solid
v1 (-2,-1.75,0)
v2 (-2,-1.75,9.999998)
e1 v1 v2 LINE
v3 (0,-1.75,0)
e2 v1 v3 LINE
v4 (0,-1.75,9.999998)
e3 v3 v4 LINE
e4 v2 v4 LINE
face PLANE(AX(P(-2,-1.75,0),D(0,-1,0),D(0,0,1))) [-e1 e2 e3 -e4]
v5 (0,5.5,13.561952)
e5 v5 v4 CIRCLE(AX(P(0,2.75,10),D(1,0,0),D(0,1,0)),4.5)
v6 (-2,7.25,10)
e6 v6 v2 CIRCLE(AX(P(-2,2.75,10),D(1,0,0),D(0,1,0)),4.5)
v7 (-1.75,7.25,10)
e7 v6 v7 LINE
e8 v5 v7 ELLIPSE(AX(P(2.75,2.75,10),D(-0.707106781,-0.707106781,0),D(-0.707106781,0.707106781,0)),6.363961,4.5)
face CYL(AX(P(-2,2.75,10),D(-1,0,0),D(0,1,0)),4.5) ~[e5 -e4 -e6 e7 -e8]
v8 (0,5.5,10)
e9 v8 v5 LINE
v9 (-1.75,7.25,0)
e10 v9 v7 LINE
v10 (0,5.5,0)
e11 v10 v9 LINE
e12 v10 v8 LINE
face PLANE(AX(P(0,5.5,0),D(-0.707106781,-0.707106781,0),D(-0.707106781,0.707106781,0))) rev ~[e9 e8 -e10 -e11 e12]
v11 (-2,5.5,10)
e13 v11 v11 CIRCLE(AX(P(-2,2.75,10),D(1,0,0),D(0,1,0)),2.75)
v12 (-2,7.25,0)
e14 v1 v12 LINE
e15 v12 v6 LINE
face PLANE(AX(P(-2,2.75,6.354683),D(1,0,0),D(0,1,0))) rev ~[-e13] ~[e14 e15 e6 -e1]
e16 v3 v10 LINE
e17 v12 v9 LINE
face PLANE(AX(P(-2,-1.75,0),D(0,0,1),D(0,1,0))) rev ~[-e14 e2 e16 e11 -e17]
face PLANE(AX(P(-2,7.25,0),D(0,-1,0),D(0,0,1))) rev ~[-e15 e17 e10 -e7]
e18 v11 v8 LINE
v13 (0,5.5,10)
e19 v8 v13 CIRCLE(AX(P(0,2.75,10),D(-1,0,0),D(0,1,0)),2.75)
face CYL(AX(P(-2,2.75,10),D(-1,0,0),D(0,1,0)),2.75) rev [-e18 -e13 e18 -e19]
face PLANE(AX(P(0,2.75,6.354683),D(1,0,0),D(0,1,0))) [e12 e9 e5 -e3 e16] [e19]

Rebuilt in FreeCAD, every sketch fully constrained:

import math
import FreeCAD as App
import Part
import Sketcher

doc = App.newDocument("Part")
body = doc.addObject("PartDesign::Body", "Body")

# Sketch on YZ plane
sketch1 = body.newObject("Sketcher::SketchObject", "Sketch")
sketch1.AttachmentSupport = (doc.getObject("YZ_Plane"), [""])
sketch1.MapMode = "FlatFace"
sketch1.AttachmentOffset = App.Placement(App.Vector(0, 0, -2), App.Rotation())
sketch1.addGeometry(Part.Circle(App.Vector(2.8, 10, 0), App.Vector(0, 0, 1), 2.8), False)
sketch1.addConstraint(Sketcher.Constraint("Diameter", 0, 5.5))
sketch1.addConstraint(Sketcher.Constraint("DistanceY", -1, 1, 0, 3, 10.0))
sketch1.addConstraint(Sketcher.Constraint("DistanceX", -1, 1, 0, 3, 2.75))
pad1 = body.newObject("PartDesign::Pad", "Pad")
pad1.Profile = sketch1
pad1.Length = 5
body2 = doc.addObject("PartDesign::Body", "Body001")

# Sketch on XY plane
sketch2 = body2.newObject("Sketcher::SketchObject", "Sketch001")
sketch2.AttachmentSupport = (doc.getObject("XY_Plane001"), [""])
sketch2.MapMode = "FlatFace"
sketch2.addGeometry(Part.LineSegment(App.Vector(-1.8, 7.2, 0), App.Vector(0, 5.5, 0)), False)
sketch2.addGeometry(Part.LineSegment(App.Vector(0, 5.5, 0), App.Vector(0, 7.2, 0)), False)
sketch2.addGeometry(Part.LineSegment(App.Vector(0, 7.2, 0), App.Vector(-1.8, 7.2, 0)), False)
sketch2.addConstraint(Sketcher.Constraint("Coincident", 0, 2, 1, 1))
sketch2.addConstraint(Sketcher.Constraint("Coincident", 1, 2, 2, 1))
sketch2.addConstraint(Sketcher.Constraint("Coincident", 2, 2, 0, 1))
sketch2.addConstraint(Sketcher.Constraint("Vertical", 1))
sketch2.addConstraint(Sketcher.Constraint("Horizontal", 2))
sketch2.addConstraint(Sketcher.Constraint("PointOnObject", 0, 2, -2))
sketch2.addConstraint(Sketcher.Constraint("Equal", 2, 1))
sketch2.addConstraint(Sketcher.Constraint("DistanceX", 2, 2, 2, 1, 1.75))
sketch2.addConstraint(Sketcher.Constraint("DistanceY", -1, 1, 0, 2, 5.5))
pad2 = body2.newObject("PartDesign::Pad", "Pad001")
pad2.Profile = sketch2
pad2.Length = 15
body3 = doc.addObject("PartDesign::Body", "Body002")

# Sketch on YZ plane
sketch3 = body3.newObject("Sketcher::SketchObject", "Sketch002")
sketch3.AttachmentSupport = (doc.getObject("YZ_Plane002"), [""])
sketch3.MapMode = "FlatFace"
sketch3.AttachmentOffset = App.Placement(App.Vector(0, 0, -2), App.Rotation())
sketch3.addGeometry(Part.LineSegment(App.Vector(-1.8, 0, 0), App.Vector(7.2, 0, 0)), False)
sketch3.addGeometry(Part.LineSegment(App.Vector(7.2, 0, 0), App.Vector(7.2, 10, 0)), False)
sketch3.addGeometry(Part.ArcOfCircle(Part.Circle(App.Vector(2.8, 10, 0), App.Vector(0, 0, 1), 4.5), math.radians(0), math.radians(180)), False)
sketch3.addGeometry(Part.LineSegment(App.Vector(-1.8, 10, 0), App.Vector(-1.8, 0, 0)), False)
sketch3.addConstraint(Sketcher.Constraint("Coincident", 0, 2, 1, 1))
sketch3.addConstraint(Sketcher.Constraint("Tangent", 1, 2, 2, 1))
sketch3.addConstraint(Sketcher.Constraint("Tangent", 2, 2, 3, 1))
sketch3.addConstraint(Sketcher.Constraint("Coincident", 3, 2, 0, 1))
sketch3.addConstraint(Sketcher.Constraint("Horizontal", 0))
sketch3.addConstraint(Sketcher.Constraint("Vertical", 1))
sketch3.addConstraint(Sketcher.Constraint("Vertical", 3))
sketch3.addConstraint(Sketcher.Constraint("PointOnObject", 0, 2, -1))
sketch3.addConstraint(Sketcher.Constraint("Radius", 2, 4.5))
sketch3.addConstraint(Sketcher.Constraint("DistanceY", 1, 1, 1, 2, 10.0))
sketch3.addConstraint(Sketcher.Constraint("DistanceX", -1, 1, 2, 3, 2.75))
pad3 = body3.newObject("PartDesign::Pad", "Pad002")
pad3.Profile = sketch3
pad3.Length = 2
doc.recompute()

boolean = body3.newObject("PartDesign::Boolean", "Boolean")
boolean.Type = "Cut"
boolean.addObjects([body2])
doc.recompute()

boolean2 = body3.newObject("PartDesign::Boolean", "Boolean001")
boolean2.Type = "Cut"
boolean2.addObjects([body])

doc.recompute()
